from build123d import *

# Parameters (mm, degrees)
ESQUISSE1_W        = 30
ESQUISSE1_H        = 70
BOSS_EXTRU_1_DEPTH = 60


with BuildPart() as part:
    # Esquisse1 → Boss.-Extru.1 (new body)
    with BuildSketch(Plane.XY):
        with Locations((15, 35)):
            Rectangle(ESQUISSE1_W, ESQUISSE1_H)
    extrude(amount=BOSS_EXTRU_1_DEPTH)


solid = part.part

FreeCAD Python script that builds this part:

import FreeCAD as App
import Part
import Sketcher

V = App.Vector
Q = App.Units.Quantity

doc = App.newDocument("Part")
body = doc.addObject("PartDesign::Body", "Body")

sketch1 = doc.addObject("Sketcher::SketchObject", "Sketch")
body.addObject(sketch1)
sketch1.AttachmentSupport = (doc.XY_Plane, [""])
sketch1.MapMode = "FlatFace"
sketch1.addGeometry([
    Part.LineSegment(V(0, 70, 0), V(0, 0, 0)),
    Part.LineSegment(V(0, 0, 0), V(30, 0, 0)),
    Part.LineSegment(V(30, 0, 0), V(30, 70, 0)),
    Part.LineSegment(V(30, 70, 0), V(0, 70, 0)),
], False)
sketch1.addConstraint([
    Sketcher.Constraint("Coincident", 0, 2, 1, 1),
    Sketcher.Constraint("Coincident", 1, 2, 2, 1),
    Sketcher.Constraint("Coincident", 2, 2, 3, 1),
    Sketcher.Constraint("Coincident", 3, 2, 0, 1),
    Sketcher.Constraint("Vertical", 0),
    Sketcher.Constraint("Horizontal", 1),
    Sketcher.Constraint("Vertical", 2),
    Sketcher.Constraint("Horizontal", 3),
    Sketcher.Constraint("Coincident", 0, 2, -1, 1),
    Sketcher.Constraint("DistanceX", 1, 1, 1, 2, Q("30 mm")),
    Sketcher.Constraint("DistanceY", 0, 2, 0, 1, Q("70 mm")),
])
pad1 = doc.addObject("PartDesign::Pad", "Pad")
body.addObject(pad1)
pad1.Profile = sketch1
pad1.Length = 60

doc.recompute()
